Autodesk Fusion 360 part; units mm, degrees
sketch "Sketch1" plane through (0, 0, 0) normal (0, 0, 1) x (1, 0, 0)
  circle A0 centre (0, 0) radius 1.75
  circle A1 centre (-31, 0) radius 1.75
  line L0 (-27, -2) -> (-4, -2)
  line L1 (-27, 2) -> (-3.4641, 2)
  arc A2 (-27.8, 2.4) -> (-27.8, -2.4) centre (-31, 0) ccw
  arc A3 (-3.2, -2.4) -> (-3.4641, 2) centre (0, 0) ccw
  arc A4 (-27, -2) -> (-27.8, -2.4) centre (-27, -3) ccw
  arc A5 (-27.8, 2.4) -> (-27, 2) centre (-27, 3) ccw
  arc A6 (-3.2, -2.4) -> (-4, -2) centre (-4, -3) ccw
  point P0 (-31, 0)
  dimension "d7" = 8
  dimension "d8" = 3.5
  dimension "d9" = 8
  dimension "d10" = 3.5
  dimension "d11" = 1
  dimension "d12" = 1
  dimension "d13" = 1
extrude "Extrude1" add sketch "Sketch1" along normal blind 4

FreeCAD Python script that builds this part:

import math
import FreeCAD as App
import Part
import Sketcher
from FreeCAD import Vector
Q = App.Units.Quantity

doc = App.newDocument("Part")
body = doc.addObject("PartDesign::Body", "Body")

# Sketch on XY plane
sketch1 = body.newObject("Sketcher::SketchObject", "Sketch")
sketch1.AttachmentSupport = (doc.getObject("XY_Plane"), [""])
sketch1.MapMode = "FlatFace"
sketch1.addGeometry([
    Part.ArcOfCircle(Part.Circle(Vector(-27, -3, 0), Vector(0, 0, 1), 1), math.radians(90), math.radians(143)),  # 0
    Part.LineSegment(Vector(-27, -2, 0), Vector(-4, -2, 0)),  # 1
    Part.ArcOfCircle(Part.Circle(Vector(-4, -3, 0), Vector(0, 0, 1), 1), math.radians(37), math.radians(90)),  # 2
    Part.ArcOfCircle(Part.Circle(Vector(0, 0, 0), Vector(0, 0, 1), 4), math.radians(-143), math.radians(150)),  # 3
    Part.LineSegment(Vector(-3.5, 2, 0), Vector(-27, 2, 0)),  # 4
    Part.ArcOfCircle(Part.Circle(Vector(-27, 3, 0), Vector(0, 0, 1), 1), math.radians(-143), math.radians(-90)),  # 5
    Part.ArcOfCircle(Part.Circle(Vector(-31, 0, 0), Vector(0, 0, 1), 4), math.radians(37), math.radians(323)),  # 6
    Part.Circle(Vector(-31, 0, 0), Vector(0, 0, 1), 1.8),  # 7
    Part.Circle(Vector(0, 0, 0), Vector(0, 0, 1), 1.8),  # 8
], False)
sketch1.addConstraint([
    Sketcher.Constraint("Tangent", 0, 1, 1, 1),
    Sketcher.Constraint("Tangent", 1, 2, 2, 2),
    Sketcher.Constraint("Tangent", 2, 1, 3, 1),
    Sketcher.Constraint("Coincident", 3, 2, 4, 1),
    Sketcher.Constraint("Tangent", 4, 2, 5, 2),
    Sketcher.Constraint("Tangent", 5, 1, 6, 1),
    Sketcher.Constraint("Tangent", 6, 2, 0, 2),
    Sketcher.Constraint("Horizontal", 1),
    Sketcher.Constraint("Horizontal", 4),
    Sketcher.Constraint("Coincident", 3, 3, -1, 1),
    Sketcher.Constraint("Coincident", 8, 3, -1, 1),
    Sketcher.Constraint("Coincident", 7, 3, 6, 3),
    Sketcher.Constraint("Equal", 0, 2),
    Sketcher.Constraint("Equal", 2, 5),
    Sketcher.Constraint("Equal", 3, 6),
    Sketcher.Constraint("Equal", 7, 8),
    Sketcher.Constraint("Symmetric", 0, 3, 5, 3, -1),
    Sketcher.Constraint("Radius", 0, Q("1 mm")),
    Sketcher.Constraint("Radius", 3, Q("4 mm")),
    Sketcher.Constraint("Diameter", 7, Q("3.5 mm")),
    Sketcher.Constraint("DistanceX", 1, 1, 1, 2, Q("23 mm")),
    Sketcher.Constraint("DistanceX", 0, 3, -1, 1, Q("27 mm")),
])
pad1 = body.newObject("PartDesign::Pad", "Pad")
pad1.Profile = sketch1
pad1.Length = 4

doc.recompute()
